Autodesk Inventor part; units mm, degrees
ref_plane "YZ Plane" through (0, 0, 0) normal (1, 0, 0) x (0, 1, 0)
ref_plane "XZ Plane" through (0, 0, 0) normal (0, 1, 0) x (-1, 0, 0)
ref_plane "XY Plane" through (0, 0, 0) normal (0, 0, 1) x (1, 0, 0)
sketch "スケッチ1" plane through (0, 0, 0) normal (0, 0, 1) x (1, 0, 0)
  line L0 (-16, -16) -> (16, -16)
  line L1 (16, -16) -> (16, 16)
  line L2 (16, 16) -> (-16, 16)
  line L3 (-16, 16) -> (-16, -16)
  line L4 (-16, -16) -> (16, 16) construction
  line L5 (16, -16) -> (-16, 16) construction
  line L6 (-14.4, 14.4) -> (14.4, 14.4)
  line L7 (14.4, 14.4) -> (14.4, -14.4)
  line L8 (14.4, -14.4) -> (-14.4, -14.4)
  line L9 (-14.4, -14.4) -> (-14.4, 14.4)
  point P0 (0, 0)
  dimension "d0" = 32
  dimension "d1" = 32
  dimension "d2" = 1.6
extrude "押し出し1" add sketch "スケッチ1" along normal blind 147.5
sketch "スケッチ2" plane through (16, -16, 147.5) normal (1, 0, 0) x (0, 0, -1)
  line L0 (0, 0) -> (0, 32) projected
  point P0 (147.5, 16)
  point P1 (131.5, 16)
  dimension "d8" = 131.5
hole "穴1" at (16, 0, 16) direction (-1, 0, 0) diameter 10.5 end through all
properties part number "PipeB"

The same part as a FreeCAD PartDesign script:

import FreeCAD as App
import Part
import Sketcher

doc = App.newDocument("Part")
body = doc.addObject("PartDesign::Body", "Body")

sketch1 = body.newObject("Sketcher::SketchObject", "Sketch")
sketch1.AttachmentSupport = (doc.getObject("XY_Plane"), [""])
sketch1.MapMode = "FlatFace"
sketch1.addGeometry(Part.LineSegment(App.Vector(-16, 16, 0), App.Vector(-16, -16, 0)), False)
sketch1.addGeometry(Part.LineSegment(App.Vector(-16, -16, 0), App.Vector(16, -16, 0)), False)
sketch1.addGeometry(Part.LineSegment(App.Vector(16, -16, 0), App.Vector(16, 16, 0)), False)
sketch1.addGeometry(Part.LineSegment(App.Vector(16, 16, 0), App.Vector(-16, 16, 0)), False)
sketch1.addGeometry(Part.LineSegment(App.Vector(-14, -14, 0), App.Vector(-14, 14, 0)), False)
sketch1.addGeometry(Part.LineSegment(App.Vector(-14, 14, 0), App.Vector(14, 14, 0)), False)
sketch1.addGeometry(Part.LineSegment(App.Vector(14, 14, 0), App.Vector(14, -14, 0)), False)
sketch1.addGeometry(Part.LineSegment(App.Vector(14, -14, 0), App.Vector(-14, -14, 0)), False)
sketch1.addConstraint(Sketcher.Constraint("Coincident", 0, 2, 1, 1))
sketch1.addConstraint(Sketcher.Constraint("Coincident", 1, 2, 2, 1))
sketch1.addConstraint(Sketcher.Constraint("Coincident", 2, 2, 3, 1))
sketch1.addConstraint(Sketcher.Constraint("Coincident", 3, 2, 0, 1))
sketch1.addConstraint(Sketcher.Constraint("Coincident", 4, 2, 5, 1))
sketch1.addConstraint(Sketcher.Constraint("Coincident", 5, 2, 6, 1))
sketch1.addConstraint(Sketcher.Constraint("Coincident", 6, 2, 7, 1))
sketch1.addConstraint(Sketcher.Constraint("Coincident", 7, 2, 4, 1))
sketch1.addConstraint(Sketcher.Constraint("Vertical", 0))
sketch1.addConstraint(Sketcher.Constraint("Horizontal", 1))
sketch1.addConstraint(Sketcher.Constraint("Vertical", 2))
sketch1.addConstraint(Sketcher.Constraint("Horizontal", 3))
sketch1.addConstraint(Sketcher.Constraint("Vertical", 4))
sketch1.addConstraint(Sketcher.Constraint("Horizontal", 5))
sketch1.addConstraint(Sketcher.Constraint("Vertical", 6))
sketch1.addConstraint(Sketcher.Constraint("Horizontal", 7))
sketch1.addConstraint(Sketcher.Constraint("Symmetric", 0, 2, 2, 2, -1, 1))
sketch1.addConstraint(Sketcher.Constraint("Symmetric", 4, 2, 6, 2, -1, 1))
sketch1.addConstraint(Sketcher.Constraint("Equal", 3, 0))
sketch1.addConstraint(Sketcher.Constraint("Equal", 7, 4))
sketch1.addConstraint(Sketcher.Constraint("DistanceX", 1, 1, 1, 2, 32.0))
sketch1.addConstraint(Sketcher.Constraint("DistanceX", 3, 2, 4, 2, 1.6))
pad1 = body.newObject("PartDesign::Pad", "Pad")
pad1.Profile = sketch1
pad1.Length = 147.5

sketch2 = body.newObject("Sketcher::SketchObject", "Sketch001")
sketch2.AttachmentSupport = (doc.getObject("YZ_Plane"), [""])
sketch2.MapMode = "FlatFace"
sketch2.AttachmentOffset = App.Placement(App.Vector(0, 0, 16), App.Rotation())
sketch2.addGeometry(Part.Circle(App.Vector(0, 16, 0), App.Vector(0, 0, 1), 5), False)
sketch2.addConstraint(Sketcher.Constraint("PointOnObject", 0, 3, -2))
sketch2.addConstraint(Sketcher.Constraint("Diameter", 0, 10.5))
sketch2.addConstraint(Sketcher.Constraint("DistanceY", -1, 1, 0, 3, 16.0))
doc.recompute()
hole = body.newObject("PartDesign::Hole", "Hole")
hole.Profile = sketch2
hole.ThreadType = "None"
hole.Diameter = 10.5
hole.DepthType = "ThroughAll"

doc.recompute()
